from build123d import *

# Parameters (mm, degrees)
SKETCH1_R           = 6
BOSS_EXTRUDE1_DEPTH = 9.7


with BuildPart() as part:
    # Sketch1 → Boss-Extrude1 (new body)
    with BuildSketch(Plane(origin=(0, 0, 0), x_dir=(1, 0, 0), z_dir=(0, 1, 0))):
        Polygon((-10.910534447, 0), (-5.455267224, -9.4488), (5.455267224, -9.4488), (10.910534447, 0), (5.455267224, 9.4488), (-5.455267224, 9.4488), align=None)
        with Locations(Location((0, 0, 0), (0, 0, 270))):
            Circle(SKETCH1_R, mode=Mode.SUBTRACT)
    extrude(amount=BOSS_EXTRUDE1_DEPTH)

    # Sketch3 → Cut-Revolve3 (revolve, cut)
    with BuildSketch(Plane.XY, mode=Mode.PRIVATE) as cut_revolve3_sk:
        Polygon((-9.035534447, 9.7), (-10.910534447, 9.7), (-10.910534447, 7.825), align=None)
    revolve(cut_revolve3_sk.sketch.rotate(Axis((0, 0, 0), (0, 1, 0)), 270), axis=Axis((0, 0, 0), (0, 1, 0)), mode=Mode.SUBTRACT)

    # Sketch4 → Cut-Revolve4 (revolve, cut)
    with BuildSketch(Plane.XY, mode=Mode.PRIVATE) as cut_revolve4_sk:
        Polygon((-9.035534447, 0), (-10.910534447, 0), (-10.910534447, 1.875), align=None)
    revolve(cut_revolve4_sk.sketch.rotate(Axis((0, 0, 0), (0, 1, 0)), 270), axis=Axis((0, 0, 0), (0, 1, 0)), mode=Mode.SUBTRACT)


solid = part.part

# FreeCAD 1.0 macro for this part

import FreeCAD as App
import Part
import Sketcher
Q = App.Units.Quantity

doc = App.newDocument("Part")
body = doc.addObject("PartDesign::Body", "Body")

# Sketch on XZ plane
sketch1 = doc.addObject("Sketcher::SketchObject", "Sketch")
body.addObject(sketch1)
sketch1.AttachmentSupport = (doc.XZ_Plane, [""])
sketch1.MapMode = "FlatFace"
sketch1.addGeometry([
    Part.LineSegment(App.Vector(-10.910534, 0, 0), App.Vector(-5.455267, 9.4488, 0)),  # 0
    Part.LineSegment(App.Vector(-5.455267, 9.4488, 0), App.Vector(5.455267, 9.4488, 0)),  # 1
    Part.LineSegment(App.Vector(5.455267, 9.4488, 0), App.Vector(10.910534, 0, 0)),  # 2
    Part.LineSegment(App.Vector(10.910534, 0, 0), App.Vector(5.455267, -9.4488, 0)),  # 3
    Part.LineSegment(App.Vector(5.455267, -9.4488, 0), App.Vector(-5.455267, -9.4488, 0)),  # 4
    Part.LineSegment(App.Vector(-5.455267, -9.4488, 0), App.Vector(-10.910534, 0, 0)),  # 5
    Part.Circle(App.Vector(0, 0, 0), App.Vector(0, 0, 1), 6),  # 6
], False)
sketch1.addConstraint([
    Sketcher.Constraint("Coincident", 0, 2, 1, 1),
    Sketcher.Constraint("Coincident", 1, 2, 2, 1),
    Sketcher.Constraint("Coincident", 2, 2, 3, 1),
    Sketcher.Constraint("Coincident", 3, 2, 4, 1),
    Sketcher.Constraint("Coincident", 4, 2, 5, 1),
    Sketcher.Constraint("Coincident", 5, 2, 0, 1),
    Sketcher.Constraint("Horizontal", 1),
    Sketcher.Constraint("Horizontal", 4),
    Sketcher.Constraint("Coincident", 6, 3, -1, 1),
    Sketcher.Constraint("Symmetric", 0, 2, 3, 2, -1, 1),
    Sketcher.Constraint("Symmetric", 2, 2, 5, 2, -1, 1),
    Sketcher.Constraint("PointOnObject", 2, 2, -1),
    Sketcher.Constraint("Parallel", 2, 5),
    Sketcher.Constraint("Vertical", 1, 2, 3, 2),
    Sketcher.Constraint("Diameter", 6, 12.0),
    Sketcher.Constraint("Angle", 0, Q("60 deg")),
    Sketcher.Constraint("DistanceY", -1, 1, 0, 2, 9.4488),
    Sketcher.Constraint("DistanceX", 0, 2, 2, 2, 16.365802),
])
pad1 = doc.addObject("PartDesign::Pad", "Pad")
body.addObject(pad1)
pad1.Profile = sketch1
pad1.Length = 9.7
pad1.Reversed = True

# Sketch on XY plane
sketch2 = doc.addObject("Sketcher::SketchObject", "Sketch001")
body.addObject(sketch2)
sketch2.AttachmentSupport = (doc.XY_Plane, [""])
sketch2.MapMode = "FlatFace"
sketch2.addGeometry([
    Part.LineSegment(App.Vector(-9.035534, 9.7, 0), App.Vector(-10.910534, 9.7, 0)),
    Part.LineSegment(App.Vector(-10.910534, 9.7, 0), App.Vector(-10.910534, 7.825, 0)),
    Part.LineSegment(App.Vector(-10.910534, 7.825, 0), App.Vector(-9.035534, 9.7, 0)),
], False)
sketch2.addConstraint([
    Sketcher.Constraint("Coincident", 0, 2, 1, 1),
    Sketcher.Constraint("Coincident", 1, 2, 2, 1),
    Sketcher.Constraint("Coincident", 2, 2, 0, 1),
    Sketcher.Constraint("Horizontal", 0),
    Sketcher.Constraint("Vertical", 1),
    Sketcher.Constraint("Equal", 0, 1),
    Sketcher.Constraint("DistanceY", -1, 1, 0, 2, 9.7),
    Sketcher.Constraint("DistanceX", 0, 2, 0, 1, 1.875),
    Sketcher.Constraint("DistanceX", 0, 2, -1, 1, 10.910534),
])
groove = doc.addObject("PartDesign::Groove", "Groove")
body.addObject(groove)
groove.Profile = sketch2
groove.ReferenceAxis = (sketch2, ["V_Axis"])
groove.Angle = 360

# Sketch on XY plane
sketch3 = doc.addObject("Sketcher::SketchObject", "Sketch002")
body.addObject(sketch3)
sketch3.AttachmentSupport = (doc.XY_Plane, [""])
sketch3.MapMode = "FlatFace"
sketch3.addGeometry([
    Part.LineSegment(App.Vector(-10.910534, 0, 0), App.Vector(-9.035534, 0, 0)),
    Part.LineSegment(App.Vector(-9.035534, 0, 0), App.Vector(-10.910534, 1.875, 0)),
    Part.LineSegment(App.Vector(-10.910534, 1.875, 0), App.Vector(-10.910534, 0, 0)),
], False)
sketch3.addConstraint([
    Sketcher.Constraint("Coincident", 0, 2, 1, 1),
    Sketcher.Constraint("Coincident", 1, 2, 2, 1),
    Sketcher.Constraint("Coincident", 2, 2, 0, 1),
    Sketcher.Constraint("Horizontal", 0),
    Sketcher.Constraint("Vertical", 2),
    Sketcher.Constraint("PointOnObject", 0, 2, -1),
    Sketcher.Constraint("Equal", 0, 2),
    Sketcher.Constraint("DistanceX", 0, 1, 0, 2, 1.875),
    Sketcher.Constraint("DistanceX", 0, 2, -1, 1, 9.035534),
])
groove2 = doc.addObject("PartDesign::Groove", "Groove001")
body.addObject(groove2)
groove2.Profile = sketch3
groove2.ReferenceAxis = (sketch3, ["V_Axis"])
groove2.Angle = 360

doc.recompute()
